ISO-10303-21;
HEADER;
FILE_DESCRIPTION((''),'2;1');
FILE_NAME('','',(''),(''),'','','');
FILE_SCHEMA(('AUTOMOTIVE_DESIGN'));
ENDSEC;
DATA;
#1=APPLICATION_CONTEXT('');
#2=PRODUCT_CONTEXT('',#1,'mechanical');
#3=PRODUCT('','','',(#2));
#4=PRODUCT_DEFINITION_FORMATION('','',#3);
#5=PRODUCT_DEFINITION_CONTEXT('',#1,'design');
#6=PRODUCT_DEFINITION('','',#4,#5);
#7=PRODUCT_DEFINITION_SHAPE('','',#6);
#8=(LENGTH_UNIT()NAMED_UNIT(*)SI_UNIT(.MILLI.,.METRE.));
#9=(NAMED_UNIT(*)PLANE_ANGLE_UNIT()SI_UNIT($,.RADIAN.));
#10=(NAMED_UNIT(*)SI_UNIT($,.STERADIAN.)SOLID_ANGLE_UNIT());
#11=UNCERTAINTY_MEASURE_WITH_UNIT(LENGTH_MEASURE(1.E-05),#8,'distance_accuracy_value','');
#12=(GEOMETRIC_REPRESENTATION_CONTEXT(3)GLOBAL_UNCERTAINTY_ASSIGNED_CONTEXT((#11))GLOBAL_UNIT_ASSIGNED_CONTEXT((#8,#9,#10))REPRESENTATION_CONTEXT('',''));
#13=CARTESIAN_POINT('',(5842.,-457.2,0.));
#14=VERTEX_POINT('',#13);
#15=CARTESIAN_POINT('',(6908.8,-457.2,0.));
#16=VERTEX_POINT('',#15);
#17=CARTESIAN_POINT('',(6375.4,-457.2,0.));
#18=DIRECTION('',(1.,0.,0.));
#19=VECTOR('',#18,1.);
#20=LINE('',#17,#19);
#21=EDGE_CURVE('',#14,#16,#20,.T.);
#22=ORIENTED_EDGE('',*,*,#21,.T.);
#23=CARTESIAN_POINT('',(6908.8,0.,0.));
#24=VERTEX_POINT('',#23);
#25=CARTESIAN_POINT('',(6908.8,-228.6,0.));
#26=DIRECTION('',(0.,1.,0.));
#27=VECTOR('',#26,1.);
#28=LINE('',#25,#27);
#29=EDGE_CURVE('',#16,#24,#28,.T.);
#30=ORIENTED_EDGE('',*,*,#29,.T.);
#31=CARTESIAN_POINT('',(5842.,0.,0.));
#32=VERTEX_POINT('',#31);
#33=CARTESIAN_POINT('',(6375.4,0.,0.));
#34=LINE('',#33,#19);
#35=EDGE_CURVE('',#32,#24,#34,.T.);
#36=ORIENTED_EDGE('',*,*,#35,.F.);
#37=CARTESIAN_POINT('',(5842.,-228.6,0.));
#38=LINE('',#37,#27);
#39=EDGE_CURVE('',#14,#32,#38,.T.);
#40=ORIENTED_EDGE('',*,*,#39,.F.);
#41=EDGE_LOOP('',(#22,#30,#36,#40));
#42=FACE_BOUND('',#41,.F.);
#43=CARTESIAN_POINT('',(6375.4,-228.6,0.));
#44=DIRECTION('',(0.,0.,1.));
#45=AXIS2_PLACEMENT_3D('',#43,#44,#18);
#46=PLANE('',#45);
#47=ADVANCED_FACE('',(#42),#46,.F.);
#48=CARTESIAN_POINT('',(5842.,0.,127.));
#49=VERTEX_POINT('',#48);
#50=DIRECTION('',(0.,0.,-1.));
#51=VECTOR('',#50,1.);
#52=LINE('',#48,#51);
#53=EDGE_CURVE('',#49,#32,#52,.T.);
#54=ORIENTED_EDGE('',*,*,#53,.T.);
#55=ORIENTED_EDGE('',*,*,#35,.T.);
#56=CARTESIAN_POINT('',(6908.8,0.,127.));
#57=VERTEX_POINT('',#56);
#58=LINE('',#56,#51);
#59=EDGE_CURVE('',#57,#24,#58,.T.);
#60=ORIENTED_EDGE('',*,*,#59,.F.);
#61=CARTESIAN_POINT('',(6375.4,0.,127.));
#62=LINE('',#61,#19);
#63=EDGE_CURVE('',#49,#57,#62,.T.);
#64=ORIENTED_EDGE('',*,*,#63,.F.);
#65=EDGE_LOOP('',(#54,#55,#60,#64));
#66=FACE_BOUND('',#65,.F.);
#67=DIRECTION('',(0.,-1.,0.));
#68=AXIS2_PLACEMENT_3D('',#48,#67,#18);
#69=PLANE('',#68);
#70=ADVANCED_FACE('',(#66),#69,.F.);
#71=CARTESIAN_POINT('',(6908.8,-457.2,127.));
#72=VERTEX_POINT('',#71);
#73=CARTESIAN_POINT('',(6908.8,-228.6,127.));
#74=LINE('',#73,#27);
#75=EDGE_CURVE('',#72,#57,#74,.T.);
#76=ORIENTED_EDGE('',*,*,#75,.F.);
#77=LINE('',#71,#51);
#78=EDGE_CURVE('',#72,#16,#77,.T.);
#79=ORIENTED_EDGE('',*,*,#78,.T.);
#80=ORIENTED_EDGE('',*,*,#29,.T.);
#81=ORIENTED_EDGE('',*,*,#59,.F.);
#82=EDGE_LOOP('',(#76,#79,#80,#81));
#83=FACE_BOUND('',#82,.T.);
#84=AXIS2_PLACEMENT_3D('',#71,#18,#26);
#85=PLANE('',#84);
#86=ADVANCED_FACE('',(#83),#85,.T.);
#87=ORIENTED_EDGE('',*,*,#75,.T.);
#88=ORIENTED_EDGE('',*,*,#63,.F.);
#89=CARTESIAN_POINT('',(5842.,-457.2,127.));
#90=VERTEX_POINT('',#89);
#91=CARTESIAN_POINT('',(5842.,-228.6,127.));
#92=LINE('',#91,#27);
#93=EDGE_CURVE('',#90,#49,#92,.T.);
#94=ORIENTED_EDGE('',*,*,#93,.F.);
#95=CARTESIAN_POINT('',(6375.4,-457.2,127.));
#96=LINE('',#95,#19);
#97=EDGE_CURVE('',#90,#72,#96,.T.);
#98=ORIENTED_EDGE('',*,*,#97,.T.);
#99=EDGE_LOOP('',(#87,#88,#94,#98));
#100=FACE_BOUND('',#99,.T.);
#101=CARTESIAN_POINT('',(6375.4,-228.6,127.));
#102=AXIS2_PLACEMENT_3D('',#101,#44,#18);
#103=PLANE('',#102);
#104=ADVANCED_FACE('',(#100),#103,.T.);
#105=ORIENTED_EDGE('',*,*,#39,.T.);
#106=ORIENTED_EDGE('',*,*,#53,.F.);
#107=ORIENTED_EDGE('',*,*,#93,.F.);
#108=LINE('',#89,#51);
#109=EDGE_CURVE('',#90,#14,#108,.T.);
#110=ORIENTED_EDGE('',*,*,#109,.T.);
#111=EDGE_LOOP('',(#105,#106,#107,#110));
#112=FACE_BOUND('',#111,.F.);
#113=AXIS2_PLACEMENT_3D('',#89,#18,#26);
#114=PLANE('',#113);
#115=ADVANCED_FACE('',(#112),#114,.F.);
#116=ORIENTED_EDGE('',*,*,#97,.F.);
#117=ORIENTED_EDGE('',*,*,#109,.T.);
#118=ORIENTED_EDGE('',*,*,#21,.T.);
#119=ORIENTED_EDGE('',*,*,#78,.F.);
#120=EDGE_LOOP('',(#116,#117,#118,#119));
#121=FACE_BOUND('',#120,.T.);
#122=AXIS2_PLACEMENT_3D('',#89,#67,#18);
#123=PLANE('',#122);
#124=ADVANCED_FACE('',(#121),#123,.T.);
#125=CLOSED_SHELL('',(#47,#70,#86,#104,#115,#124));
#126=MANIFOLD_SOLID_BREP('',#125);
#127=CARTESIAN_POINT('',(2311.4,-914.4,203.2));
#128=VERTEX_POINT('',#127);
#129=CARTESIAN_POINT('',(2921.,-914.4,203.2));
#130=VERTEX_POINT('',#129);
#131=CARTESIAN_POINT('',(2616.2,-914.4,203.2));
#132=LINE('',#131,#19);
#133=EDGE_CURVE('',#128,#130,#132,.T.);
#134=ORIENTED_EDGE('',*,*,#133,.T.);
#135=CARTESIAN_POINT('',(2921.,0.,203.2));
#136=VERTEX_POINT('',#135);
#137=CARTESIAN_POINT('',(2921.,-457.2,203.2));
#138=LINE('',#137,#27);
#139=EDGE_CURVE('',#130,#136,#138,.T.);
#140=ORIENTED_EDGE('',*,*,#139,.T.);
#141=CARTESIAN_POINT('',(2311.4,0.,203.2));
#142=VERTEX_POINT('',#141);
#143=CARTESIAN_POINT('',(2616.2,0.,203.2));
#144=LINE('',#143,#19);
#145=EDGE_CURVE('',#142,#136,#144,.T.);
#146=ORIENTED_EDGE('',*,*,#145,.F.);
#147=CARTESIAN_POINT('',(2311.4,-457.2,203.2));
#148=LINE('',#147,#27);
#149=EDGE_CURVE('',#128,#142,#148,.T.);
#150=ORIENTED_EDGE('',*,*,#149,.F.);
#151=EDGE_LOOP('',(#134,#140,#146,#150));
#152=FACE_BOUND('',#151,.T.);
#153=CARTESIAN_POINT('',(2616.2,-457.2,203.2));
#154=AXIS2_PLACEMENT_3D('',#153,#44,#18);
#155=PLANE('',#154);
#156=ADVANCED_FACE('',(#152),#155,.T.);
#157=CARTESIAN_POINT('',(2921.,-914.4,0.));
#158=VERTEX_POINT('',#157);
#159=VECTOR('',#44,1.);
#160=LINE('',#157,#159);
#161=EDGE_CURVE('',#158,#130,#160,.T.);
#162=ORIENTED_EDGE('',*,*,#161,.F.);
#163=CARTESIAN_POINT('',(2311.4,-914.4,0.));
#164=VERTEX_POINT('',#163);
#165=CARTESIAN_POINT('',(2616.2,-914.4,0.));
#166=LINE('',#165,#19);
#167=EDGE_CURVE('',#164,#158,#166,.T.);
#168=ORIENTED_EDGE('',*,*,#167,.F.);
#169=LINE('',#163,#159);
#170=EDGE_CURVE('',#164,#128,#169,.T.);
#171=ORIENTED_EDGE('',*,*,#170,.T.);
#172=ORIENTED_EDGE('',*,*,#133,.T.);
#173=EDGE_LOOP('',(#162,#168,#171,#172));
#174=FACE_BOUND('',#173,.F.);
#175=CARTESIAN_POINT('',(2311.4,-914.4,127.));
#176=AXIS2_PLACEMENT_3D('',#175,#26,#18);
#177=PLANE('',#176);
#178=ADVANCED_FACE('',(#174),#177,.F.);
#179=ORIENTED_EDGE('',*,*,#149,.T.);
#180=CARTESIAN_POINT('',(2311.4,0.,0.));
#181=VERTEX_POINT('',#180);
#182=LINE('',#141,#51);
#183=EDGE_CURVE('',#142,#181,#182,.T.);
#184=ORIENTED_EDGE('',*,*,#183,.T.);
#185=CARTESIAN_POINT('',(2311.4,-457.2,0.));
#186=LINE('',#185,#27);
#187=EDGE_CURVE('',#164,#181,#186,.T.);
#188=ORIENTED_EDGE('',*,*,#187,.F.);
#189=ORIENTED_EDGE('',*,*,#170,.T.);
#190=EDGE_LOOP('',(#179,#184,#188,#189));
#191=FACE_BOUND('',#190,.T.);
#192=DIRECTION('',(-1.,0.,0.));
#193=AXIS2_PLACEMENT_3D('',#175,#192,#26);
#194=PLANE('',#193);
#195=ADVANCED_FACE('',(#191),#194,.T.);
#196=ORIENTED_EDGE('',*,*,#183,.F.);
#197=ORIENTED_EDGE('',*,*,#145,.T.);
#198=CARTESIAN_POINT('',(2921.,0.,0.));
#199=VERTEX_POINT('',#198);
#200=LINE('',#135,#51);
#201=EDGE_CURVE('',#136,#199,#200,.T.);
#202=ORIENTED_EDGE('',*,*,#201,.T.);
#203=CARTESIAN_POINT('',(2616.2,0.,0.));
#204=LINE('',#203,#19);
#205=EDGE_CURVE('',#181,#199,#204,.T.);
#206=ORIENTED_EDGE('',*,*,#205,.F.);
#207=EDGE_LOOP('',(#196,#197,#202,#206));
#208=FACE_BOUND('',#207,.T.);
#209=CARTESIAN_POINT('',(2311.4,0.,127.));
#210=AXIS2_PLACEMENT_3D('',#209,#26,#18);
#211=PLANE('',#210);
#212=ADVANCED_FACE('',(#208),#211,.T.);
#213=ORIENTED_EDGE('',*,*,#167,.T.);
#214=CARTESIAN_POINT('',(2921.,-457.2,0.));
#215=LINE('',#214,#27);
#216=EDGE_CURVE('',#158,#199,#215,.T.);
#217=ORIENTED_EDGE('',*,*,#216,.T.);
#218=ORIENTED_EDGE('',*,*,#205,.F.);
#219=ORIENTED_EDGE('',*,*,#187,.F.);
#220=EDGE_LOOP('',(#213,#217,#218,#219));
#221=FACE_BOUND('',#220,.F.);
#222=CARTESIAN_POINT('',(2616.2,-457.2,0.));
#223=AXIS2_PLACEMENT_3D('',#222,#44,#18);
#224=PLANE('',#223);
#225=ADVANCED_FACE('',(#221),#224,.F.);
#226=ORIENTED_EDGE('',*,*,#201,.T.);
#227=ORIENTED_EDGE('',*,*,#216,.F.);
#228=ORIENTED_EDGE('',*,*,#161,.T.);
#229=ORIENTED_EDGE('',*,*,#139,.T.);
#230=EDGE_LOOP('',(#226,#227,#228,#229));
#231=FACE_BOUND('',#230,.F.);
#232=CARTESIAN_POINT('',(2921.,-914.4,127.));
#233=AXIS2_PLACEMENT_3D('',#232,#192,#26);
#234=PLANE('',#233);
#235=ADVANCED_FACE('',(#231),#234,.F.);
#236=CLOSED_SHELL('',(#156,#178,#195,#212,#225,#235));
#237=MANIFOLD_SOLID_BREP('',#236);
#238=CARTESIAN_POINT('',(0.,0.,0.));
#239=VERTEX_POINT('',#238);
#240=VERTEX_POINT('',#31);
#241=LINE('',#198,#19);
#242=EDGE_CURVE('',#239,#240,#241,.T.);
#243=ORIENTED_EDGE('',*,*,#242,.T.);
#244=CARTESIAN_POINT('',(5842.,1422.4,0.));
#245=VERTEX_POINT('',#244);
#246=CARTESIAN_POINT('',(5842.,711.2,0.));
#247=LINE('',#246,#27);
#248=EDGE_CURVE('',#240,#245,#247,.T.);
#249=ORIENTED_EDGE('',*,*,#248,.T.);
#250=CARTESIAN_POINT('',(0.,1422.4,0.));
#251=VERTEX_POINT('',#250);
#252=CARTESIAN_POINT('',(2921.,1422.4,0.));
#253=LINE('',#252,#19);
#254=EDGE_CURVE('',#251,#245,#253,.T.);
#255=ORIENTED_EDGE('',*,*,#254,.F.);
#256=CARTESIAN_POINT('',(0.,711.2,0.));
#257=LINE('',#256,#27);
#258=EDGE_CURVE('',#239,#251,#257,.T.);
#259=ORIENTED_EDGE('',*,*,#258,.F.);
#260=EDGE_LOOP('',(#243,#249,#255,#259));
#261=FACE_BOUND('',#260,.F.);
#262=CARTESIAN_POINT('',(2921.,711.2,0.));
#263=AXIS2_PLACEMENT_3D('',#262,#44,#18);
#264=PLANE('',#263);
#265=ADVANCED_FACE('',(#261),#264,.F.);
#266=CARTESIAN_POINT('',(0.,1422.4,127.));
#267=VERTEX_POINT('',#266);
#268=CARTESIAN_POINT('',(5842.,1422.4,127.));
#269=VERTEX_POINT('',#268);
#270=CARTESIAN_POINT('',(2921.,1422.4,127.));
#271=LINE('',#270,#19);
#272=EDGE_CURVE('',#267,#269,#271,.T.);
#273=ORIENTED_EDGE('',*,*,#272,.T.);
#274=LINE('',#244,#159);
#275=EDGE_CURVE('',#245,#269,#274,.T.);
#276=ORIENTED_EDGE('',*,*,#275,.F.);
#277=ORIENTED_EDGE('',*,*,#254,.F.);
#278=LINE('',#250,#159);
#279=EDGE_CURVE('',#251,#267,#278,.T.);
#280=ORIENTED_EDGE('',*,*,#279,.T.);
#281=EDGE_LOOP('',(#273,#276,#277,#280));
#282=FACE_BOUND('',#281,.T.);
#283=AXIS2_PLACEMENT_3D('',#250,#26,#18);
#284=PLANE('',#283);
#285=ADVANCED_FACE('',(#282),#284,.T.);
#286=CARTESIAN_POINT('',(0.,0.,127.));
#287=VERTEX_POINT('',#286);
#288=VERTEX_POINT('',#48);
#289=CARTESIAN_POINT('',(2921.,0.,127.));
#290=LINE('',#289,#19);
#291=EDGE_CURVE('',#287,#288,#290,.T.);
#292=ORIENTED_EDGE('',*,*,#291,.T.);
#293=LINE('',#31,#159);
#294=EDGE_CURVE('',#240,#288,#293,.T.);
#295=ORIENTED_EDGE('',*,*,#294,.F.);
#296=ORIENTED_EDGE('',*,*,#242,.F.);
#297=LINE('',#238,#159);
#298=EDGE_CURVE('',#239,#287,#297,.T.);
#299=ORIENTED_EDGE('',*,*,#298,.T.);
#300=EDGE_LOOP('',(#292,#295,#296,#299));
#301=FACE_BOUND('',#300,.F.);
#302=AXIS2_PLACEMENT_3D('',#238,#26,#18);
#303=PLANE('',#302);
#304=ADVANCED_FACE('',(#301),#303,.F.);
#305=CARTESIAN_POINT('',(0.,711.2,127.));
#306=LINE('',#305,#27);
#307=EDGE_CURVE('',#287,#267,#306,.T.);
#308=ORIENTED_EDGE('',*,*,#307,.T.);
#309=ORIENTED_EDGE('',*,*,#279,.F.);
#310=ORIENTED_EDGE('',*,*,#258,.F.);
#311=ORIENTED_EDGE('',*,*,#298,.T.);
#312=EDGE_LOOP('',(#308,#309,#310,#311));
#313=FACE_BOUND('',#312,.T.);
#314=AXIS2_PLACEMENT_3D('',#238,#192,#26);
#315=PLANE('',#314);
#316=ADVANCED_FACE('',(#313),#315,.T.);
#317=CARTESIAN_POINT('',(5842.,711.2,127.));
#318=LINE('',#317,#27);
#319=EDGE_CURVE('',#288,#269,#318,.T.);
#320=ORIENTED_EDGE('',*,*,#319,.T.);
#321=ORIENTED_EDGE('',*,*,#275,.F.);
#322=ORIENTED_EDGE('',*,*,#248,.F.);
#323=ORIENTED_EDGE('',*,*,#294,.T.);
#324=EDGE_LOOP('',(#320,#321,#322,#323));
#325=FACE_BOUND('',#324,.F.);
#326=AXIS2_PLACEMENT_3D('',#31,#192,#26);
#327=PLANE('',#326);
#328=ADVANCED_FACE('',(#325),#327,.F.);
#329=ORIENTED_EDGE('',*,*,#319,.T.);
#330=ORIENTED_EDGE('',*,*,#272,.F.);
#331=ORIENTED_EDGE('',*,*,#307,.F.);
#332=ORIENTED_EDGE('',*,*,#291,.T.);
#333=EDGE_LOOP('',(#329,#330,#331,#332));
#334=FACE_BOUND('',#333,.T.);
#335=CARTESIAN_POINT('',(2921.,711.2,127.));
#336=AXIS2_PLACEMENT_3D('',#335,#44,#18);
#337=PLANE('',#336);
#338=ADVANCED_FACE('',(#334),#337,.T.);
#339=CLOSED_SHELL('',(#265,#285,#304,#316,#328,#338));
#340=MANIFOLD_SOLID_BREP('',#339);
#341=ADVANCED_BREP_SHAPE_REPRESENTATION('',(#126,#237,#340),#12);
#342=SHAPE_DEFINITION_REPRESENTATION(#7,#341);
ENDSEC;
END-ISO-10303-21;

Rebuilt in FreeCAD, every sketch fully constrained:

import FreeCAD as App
import Part
import Sketcher

V = App.Vector
Q = App.Units.Quantity

doc = App.newDocument("Part")
body = doc.addObject("PartDesign::Body", "Body")

# Sketch on XY plane
sketch1 = doc.addObject("Sketcher::SketchObject", "Sketch")
body.addObject(sketch1)
sketch1.AttachmentSupport = (doc.XY_Plane, [""])
sketch1.MapMode = "FlatFace"
sketch1.addGeometry([
    Part.LineSegment(V(0, 1422.4, 0), V(0, 0, 0)),
    Part.LineSegment(V(0, 0, 0), V(5842, 0, 0)),
    Part.LineSegment(V(5842, 0, 0), V(5842, 1422.4, 0)),
    Part.LineSegment(V(5842, 1422.4, 0), V(0, 1422.4, 0)),
], False)
sketch1.addConstraint([
    Sketcher.Constraint("Coincident", 0, 2, 1, 1),
    Sketcher.Constraint("Coincident", 1, 2, 2, 1),
    Sketcher.Constraint("Coincident", 2, 2, 3, 1),
    Sketcher.Constraint("Coincident", 3, 2, 0, 1),
    Sketcher.Constraint("Vertical", 0),
    Sketcher.Constraint("Horizontal", 1),
    Sketcher.Constraint("Vertical", 2),
    Sketcher.Constraint("Horizontal", 3),
    Sketcher.Constraint("Coincident", 0, 2, -1, 1),
    Sketcher.Constraint("DistanceX", 1, 1, 1, 2, Q("230 in")),
    Sketcher.Constraint("DistanceY", 0, 2, 0, 1, Q("56 in")),
])
pad1 = doc.addObject("PartDesign::Pad", "Pad")
body.addObject(pad1)
pad1.Profile = sketch1
pad1.Length = Q("5 in")
body2 = doc.addObject("PartDesign::Body", "Body001")

# Sketch on XY plane
sketch2 = doc.addObject("Sketcher::SketchObject", "Sketch001")
body2.addObject(sketch2)
sketch2.AttachmentSupport = (doc.getObject("XY_Plane001"), [""])
sketch2.MapMode = "FlatFace"
sketch2.AttachmentOffset = App.Placement(V(0, 0, 5 * 25.4), App.Rotation())
sketch2.addGeometry([
    Part.LineSegment(V(2311.4, 0, 0), V(2311.4, -914.4, 0)),
    Part.LineSegment(V(2311.4, -914.4, 0), V(2921, -914.4, 0)),
    Part.LineSegment(V(2921, -914.4, 0), V(2921, 0, 0)),
    Part.LineSegment(V(2921, 0, 0), V(2311.4, 0, 0)),
], False)
sketch2.addConstraint([
    Sketcher.Constraint("Coincident", 0, 2, 1, 1),
    Sketcher.Constraint("Coincident", 1, 2, 2, 1),
    Sketcher.Constraint("Coincident", 2, 2, 3, 1),
    Sketcher.Constraint("Coincident", 3, 2, 0, 1),
    Sketcher.Constraint("Vertical", 0),
    Sketcher.Constraint("Horizontal", 1),
    Sketcher.Constraint("Vertical", 2),
    Sketcher.Constraint("Horizontal", 3),
    Sketcher.Constraint("PointOnObject", 2, 2, -1),
    Sketcher.Constraint("DistanceX", 1, 1, 1, 2, Q("24 in")),
    Sketcher.Constraint("DistanceY", 0, 2, 0, 1, Q("36 in")),
    Sketcher.Constraint("DistanceX", -1, 1, 0, 2, Q("91 in")),
])
pad2 = doc.addObject("PartDesign::Pad", "Pad001")
body2.addObject(pad2)
pad2.Profile = sketch2
pad2.Type = "TwoLengths"
pad2.Length = Q("5 in")
pad2.Length2 = Q("3 in")
pad2.Reversed = True
body3 = doc.addObject("PartDesign::Body", "Body002")

# Sketch on XY plane
sketch3 = doc.addObject("Sketcher::SketchObject", "Sketch002")
body3.addObject(sketch3)
sketch3.AttachmentSupport = (doc.getObject("XY_Plane002"), [""])
sketch3.MapMode = "FlatFace"
sketch3.AttachmentOffset = App.Placement(V(0, 0, 5 * 25.4), App.Rotation())
sketch3.addGeometry([
    Part.LineSegment(V(5842, 0, 0), V(5842, -457.2, 0)),
    Part.LineSegment(V(5842, -457.2, 0), V(6908.8, -457.2, 0)),
    Part.LineSegment(V(6908.8, -457.2, 0), V(6908.8, 0, 0)),
    Part.LineSegment(V(6908.8, 0, 0), V(5842, 0, 0)),
], False)
sketch3.addConstraint([
    Sketcher.Constraint("Coincident", 0, 2, 1, 1),
    Sketcher.Constraint("Coincident", 1, 2, 2, 1),
    Sketcher.Constraint("Coincident", 2, 2, 3, 1),
    Sketcher.Constraint("Coincident", 3, 2, 0, 1),
    Sketcher.Constraint("Vertical", 0),
    Sketcher.Constraint("Horizontal", 1),
    Sketcher.Constraint("Vertical", 2),
    Sketcher.Constraint("Horizontal", 3),
    Sketcher.Constraint("PointOnObject", 2, 2, -1),
    Sketcher.Constraint("DistanceX", 1, 1, 1, 2, Q("42 in")),
    Sketcher.Constraint("DistanceY", 0, 2, 0, 1, Q("18 in")),
    Sketcher.Constraint("DistanceX", -1, 1, 0, 2, Q("230 in")),
])
pad3 = doc.addObject("PartDesign::Pad", "Pad002")
body3.addObject(pad3)
pad3.Profile = sketch3
pad3.Length = Q("5 in")
pad3.Reversed = True

doc.recompute()
